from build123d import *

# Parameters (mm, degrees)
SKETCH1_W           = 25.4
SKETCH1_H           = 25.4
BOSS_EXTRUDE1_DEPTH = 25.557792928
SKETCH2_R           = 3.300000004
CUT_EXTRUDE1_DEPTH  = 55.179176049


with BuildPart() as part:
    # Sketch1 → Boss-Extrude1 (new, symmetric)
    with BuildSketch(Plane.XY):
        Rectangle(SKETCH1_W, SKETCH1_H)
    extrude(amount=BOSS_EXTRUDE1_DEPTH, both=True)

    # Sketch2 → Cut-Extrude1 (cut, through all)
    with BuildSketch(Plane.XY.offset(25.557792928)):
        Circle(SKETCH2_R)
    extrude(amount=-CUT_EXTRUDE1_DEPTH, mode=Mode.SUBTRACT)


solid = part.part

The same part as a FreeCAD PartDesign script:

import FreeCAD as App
import Part
import Sketcher

V = App.Vector
Q = App.Units.Quantity

doc = App.newDocument("Part")
body = doc.addObject("PartDesign::Body", "Body")

sketch1 = body.newObject("Sketcher::SketchObject", "Sketch")
sketch1.AttachmentSupport = (doc.getObject("XY_Plane"), [""])
sketch1.MapMode = "FlatFace"
sketch1.addGeometry([
    Part.LineSegment(V(-13, 13, 0), V(-13, -13, 0)),
    Part.LineSegment(V(-13, -13, 0), V(13, -13, 0)),
    Part.LineSegment(V(13, -13, 0), V(13, 13, 0)),
    Part.LineSegment(V(13, 13, 0), V(-13, 13, 0)),
], False)
sketch1.addConstraint([
    Sketcher.Constraint("Coincident", 0, 2, 1, 1),
    Sketcher.Constraint("Coincident", 1, 2, 2, 1),
    Sketcher.Constraint("Coincident", 2, 2, 3, 1),
    Sketcher.Constraint("Coincident", 3, 2, 0, 1),
    Sketcher.Constraint("Vertical", 0),
    Sketcher.Constraint("Horizontal", 1),
    Sketcher.Constraint("Vertical", 2),
    Sketcher.Constraint("Horizontal", 3),
    Sketcher.Constraint("Symmetric", 0, 2, 2, 2, -1, 1),
    Sketcher.Constraint("Equal", 3, 0),
    Sketcher.Constraint("DistanceX", 1, 1, 1, 2, Q("25.4 mm")),
])
pad1 = body.newObject("PartDesign::Pad", "Pad")
pad1.Profile = sketch1
pad1.Length = 51.115586
pad1.Midplane = True

sketch2 = body.newObject("Sketcher::SketchObject", "Sketch001")
sketch2.AttachmentSupport = (doc.getObject("XY_Plane"), [""])
sketch2.MapMode = "FlatFace"
sketch2.AttachmentOffset = App.Placement(V(0, 0, 25.557793), App.Rotation())
sketch2.addGeometry(Part.Circle(V(0, 0, 0), V(0, 0, 1), 3.3), False)
sketch2.addConstraint([
    Sketcher.Constraint("Coincident", 0, 3, -1, 1),
    Sketcher.Constraint("Diameter", 0, Q("6.6 mm")),
])
pocket1 = body.newObject("PartDesign::Pocket", "Pocket")
pocket1.Profile = sketch2
pocket1.Type = "ThroughAll"

doc.recompute()
